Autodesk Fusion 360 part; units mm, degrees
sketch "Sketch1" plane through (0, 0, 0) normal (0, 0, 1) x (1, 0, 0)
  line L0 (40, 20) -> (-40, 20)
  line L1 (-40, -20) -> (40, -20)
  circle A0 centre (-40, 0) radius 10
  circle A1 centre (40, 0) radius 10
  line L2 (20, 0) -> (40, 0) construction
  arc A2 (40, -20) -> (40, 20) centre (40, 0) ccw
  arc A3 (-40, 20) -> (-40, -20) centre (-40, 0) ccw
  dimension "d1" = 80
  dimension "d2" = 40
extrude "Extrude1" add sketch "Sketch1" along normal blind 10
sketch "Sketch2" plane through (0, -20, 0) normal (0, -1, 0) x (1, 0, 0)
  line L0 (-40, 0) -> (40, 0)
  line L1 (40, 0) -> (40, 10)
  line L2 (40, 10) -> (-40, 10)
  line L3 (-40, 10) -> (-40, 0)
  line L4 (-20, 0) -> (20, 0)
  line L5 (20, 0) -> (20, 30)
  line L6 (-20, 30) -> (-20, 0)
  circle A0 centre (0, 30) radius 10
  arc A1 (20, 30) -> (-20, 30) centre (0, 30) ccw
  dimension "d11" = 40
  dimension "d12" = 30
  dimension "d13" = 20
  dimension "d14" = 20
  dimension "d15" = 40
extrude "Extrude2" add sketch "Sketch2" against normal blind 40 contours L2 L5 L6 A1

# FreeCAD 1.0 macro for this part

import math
import FreeCAD as App
import Part
import Sketcher

V = App.Vector

doc = App.newDocument("Part")
body = doc.addObject("PartDesign::Body", "Body")

# Sketch on XY plane
sketch1 = body.newObject("Sketcher::SketchObject", "Sketch")
sketch1.AttachmentSupport = (doc.getObject("XY_Plane"), [""])
sketch1.MapMode = "FlatFace"
sketch1.addGeometry([
    Part.ArcOfCircle(Part.Circle(V(40, 0, 0), V(0, 0, 1), 20), math.radians(-90), math.radians(90)),  # 0
    Part.LineSegment(V(40, 20, 0), V(-40, 20, 0)),  # 1
    Part.ArcOfCircle(Part.Circle(V(-40, 0, 0), V(0, 0, 1), 20), math.radians(90), math.radians(270)),  # 2
    Part.LineSegment(V(-40, -20, 0), V(40, -20, 0)),  # 3
    Part.Circle(V(-40, 0, 0), V(0, 0, 1), 10),  # 4
    Part.Circle(V(40, 0, 0), V(0, 0, 1), 10),  # 5
], False)
sketch1.addConstraint([
    Sketcher.Constraint("Tangent", 0, 2, 1, 1),
    Sketcher.Constraint("Tangent", 1, 2, 2, 1),
    Sketcher.Constraint("Tangent", 2, 2, 3, 1),
    Sketcher.Constraint("Tangent", 3, 2, 0, 1),
    Sketcher.Constraint("Horizontal", 1),
    Sketcher.Constraint("Horizontal", 3),
    Sketcher.Constraint("Coincident", 4, 3, 2, 3),
    Sketcher.Constraint("Coincident", 5, 3, 0, 3),
    Sketcher.Constraint("Equal", 4, 5),
    Sketcher.Constraint("Symmetric", 0, 3, 2, 3, -1, 1),
    Sketcher.Constraint("Radius", 0, 20.0),
    Sketcher.Constraint("DistanceX", 1, 2, 1, 1, 80.0),
    Sketcher.Constraint("Diameter", 4, 20.0),
])
pad1 = body.newObject("PartDesign::Pad", "Pad")
pad1.Profile = sketch1
pad1.Length = 10

# Sketch on XZ plane
sketch2 = body.newObject("Sketcher::SketchObject", "Sketch001")
sketch2.AttachmentSupport = (doc.getObject("XZ_Plane"), [""])
sketch2.MapMode = "FlatFace"
sketch2.AttachmentOffset = App.Placement(V(0, 0, 20), App.Rotation())
sketch2.addGeometry([
    Part.LineSegment(V(-20, 30, 0), V(-20, 10, 0)),  # 0
    Part.LineSegment(V(-20, 10, 0), V(20, 10, 0)),  # 1
    Part.LineSegment(V(20, 10, 0), V(20, 30, 0)),  # 2
    Part.ArcOfCircle(Part.Circle(V(0, 30, 0), V(0, 0, 1), 20), math.radians(0), math.radians(180)),  # 3
    Part.Circle(V(0, 30, 0), V(0, 0, 1), 10),  # 4
], False)
sketch2.addConstraint([
    Sketcher.Constraint("Coincident", 0, 2, 1, 1),
    Sketcher.Constraint("Coincident", 1, 2, 2, 1),
    Sketcher.Constraint("Tangent", 2, 2, 3, 1),
    Sketcher.Constraint("Tangent", 3, 2, 0, 1),
    Sketcher.Constraint("Vertical", 0),
    Sketcher.Constraint("Horizontal", 1),
    Sketcher.Constraint("Vertical", 2),
    Sketcher.Constraint("Coincident", 4, 3, 3, 3),
    Sketcher.Constraint("PointOnObject", 3, 3, -2),
    Sketcher.Constraint("Diameter", 4, 20.0),
    Sketcher.Constraint("Radius", 3, 20.0),
    Sketcher.Constraint("DistanceY", 0, 2, 0, 1, 20.0),
    Sketcher.Constraint("DistanceY", -1, 1, 3, 3, 30.0),
])
pad2 = body.newObject("PartDesign::Pad", "Pad001")
pad2.Profile = sketch2
pad2.Length = 40
pad2.Reversed = True

doc.recompute()
